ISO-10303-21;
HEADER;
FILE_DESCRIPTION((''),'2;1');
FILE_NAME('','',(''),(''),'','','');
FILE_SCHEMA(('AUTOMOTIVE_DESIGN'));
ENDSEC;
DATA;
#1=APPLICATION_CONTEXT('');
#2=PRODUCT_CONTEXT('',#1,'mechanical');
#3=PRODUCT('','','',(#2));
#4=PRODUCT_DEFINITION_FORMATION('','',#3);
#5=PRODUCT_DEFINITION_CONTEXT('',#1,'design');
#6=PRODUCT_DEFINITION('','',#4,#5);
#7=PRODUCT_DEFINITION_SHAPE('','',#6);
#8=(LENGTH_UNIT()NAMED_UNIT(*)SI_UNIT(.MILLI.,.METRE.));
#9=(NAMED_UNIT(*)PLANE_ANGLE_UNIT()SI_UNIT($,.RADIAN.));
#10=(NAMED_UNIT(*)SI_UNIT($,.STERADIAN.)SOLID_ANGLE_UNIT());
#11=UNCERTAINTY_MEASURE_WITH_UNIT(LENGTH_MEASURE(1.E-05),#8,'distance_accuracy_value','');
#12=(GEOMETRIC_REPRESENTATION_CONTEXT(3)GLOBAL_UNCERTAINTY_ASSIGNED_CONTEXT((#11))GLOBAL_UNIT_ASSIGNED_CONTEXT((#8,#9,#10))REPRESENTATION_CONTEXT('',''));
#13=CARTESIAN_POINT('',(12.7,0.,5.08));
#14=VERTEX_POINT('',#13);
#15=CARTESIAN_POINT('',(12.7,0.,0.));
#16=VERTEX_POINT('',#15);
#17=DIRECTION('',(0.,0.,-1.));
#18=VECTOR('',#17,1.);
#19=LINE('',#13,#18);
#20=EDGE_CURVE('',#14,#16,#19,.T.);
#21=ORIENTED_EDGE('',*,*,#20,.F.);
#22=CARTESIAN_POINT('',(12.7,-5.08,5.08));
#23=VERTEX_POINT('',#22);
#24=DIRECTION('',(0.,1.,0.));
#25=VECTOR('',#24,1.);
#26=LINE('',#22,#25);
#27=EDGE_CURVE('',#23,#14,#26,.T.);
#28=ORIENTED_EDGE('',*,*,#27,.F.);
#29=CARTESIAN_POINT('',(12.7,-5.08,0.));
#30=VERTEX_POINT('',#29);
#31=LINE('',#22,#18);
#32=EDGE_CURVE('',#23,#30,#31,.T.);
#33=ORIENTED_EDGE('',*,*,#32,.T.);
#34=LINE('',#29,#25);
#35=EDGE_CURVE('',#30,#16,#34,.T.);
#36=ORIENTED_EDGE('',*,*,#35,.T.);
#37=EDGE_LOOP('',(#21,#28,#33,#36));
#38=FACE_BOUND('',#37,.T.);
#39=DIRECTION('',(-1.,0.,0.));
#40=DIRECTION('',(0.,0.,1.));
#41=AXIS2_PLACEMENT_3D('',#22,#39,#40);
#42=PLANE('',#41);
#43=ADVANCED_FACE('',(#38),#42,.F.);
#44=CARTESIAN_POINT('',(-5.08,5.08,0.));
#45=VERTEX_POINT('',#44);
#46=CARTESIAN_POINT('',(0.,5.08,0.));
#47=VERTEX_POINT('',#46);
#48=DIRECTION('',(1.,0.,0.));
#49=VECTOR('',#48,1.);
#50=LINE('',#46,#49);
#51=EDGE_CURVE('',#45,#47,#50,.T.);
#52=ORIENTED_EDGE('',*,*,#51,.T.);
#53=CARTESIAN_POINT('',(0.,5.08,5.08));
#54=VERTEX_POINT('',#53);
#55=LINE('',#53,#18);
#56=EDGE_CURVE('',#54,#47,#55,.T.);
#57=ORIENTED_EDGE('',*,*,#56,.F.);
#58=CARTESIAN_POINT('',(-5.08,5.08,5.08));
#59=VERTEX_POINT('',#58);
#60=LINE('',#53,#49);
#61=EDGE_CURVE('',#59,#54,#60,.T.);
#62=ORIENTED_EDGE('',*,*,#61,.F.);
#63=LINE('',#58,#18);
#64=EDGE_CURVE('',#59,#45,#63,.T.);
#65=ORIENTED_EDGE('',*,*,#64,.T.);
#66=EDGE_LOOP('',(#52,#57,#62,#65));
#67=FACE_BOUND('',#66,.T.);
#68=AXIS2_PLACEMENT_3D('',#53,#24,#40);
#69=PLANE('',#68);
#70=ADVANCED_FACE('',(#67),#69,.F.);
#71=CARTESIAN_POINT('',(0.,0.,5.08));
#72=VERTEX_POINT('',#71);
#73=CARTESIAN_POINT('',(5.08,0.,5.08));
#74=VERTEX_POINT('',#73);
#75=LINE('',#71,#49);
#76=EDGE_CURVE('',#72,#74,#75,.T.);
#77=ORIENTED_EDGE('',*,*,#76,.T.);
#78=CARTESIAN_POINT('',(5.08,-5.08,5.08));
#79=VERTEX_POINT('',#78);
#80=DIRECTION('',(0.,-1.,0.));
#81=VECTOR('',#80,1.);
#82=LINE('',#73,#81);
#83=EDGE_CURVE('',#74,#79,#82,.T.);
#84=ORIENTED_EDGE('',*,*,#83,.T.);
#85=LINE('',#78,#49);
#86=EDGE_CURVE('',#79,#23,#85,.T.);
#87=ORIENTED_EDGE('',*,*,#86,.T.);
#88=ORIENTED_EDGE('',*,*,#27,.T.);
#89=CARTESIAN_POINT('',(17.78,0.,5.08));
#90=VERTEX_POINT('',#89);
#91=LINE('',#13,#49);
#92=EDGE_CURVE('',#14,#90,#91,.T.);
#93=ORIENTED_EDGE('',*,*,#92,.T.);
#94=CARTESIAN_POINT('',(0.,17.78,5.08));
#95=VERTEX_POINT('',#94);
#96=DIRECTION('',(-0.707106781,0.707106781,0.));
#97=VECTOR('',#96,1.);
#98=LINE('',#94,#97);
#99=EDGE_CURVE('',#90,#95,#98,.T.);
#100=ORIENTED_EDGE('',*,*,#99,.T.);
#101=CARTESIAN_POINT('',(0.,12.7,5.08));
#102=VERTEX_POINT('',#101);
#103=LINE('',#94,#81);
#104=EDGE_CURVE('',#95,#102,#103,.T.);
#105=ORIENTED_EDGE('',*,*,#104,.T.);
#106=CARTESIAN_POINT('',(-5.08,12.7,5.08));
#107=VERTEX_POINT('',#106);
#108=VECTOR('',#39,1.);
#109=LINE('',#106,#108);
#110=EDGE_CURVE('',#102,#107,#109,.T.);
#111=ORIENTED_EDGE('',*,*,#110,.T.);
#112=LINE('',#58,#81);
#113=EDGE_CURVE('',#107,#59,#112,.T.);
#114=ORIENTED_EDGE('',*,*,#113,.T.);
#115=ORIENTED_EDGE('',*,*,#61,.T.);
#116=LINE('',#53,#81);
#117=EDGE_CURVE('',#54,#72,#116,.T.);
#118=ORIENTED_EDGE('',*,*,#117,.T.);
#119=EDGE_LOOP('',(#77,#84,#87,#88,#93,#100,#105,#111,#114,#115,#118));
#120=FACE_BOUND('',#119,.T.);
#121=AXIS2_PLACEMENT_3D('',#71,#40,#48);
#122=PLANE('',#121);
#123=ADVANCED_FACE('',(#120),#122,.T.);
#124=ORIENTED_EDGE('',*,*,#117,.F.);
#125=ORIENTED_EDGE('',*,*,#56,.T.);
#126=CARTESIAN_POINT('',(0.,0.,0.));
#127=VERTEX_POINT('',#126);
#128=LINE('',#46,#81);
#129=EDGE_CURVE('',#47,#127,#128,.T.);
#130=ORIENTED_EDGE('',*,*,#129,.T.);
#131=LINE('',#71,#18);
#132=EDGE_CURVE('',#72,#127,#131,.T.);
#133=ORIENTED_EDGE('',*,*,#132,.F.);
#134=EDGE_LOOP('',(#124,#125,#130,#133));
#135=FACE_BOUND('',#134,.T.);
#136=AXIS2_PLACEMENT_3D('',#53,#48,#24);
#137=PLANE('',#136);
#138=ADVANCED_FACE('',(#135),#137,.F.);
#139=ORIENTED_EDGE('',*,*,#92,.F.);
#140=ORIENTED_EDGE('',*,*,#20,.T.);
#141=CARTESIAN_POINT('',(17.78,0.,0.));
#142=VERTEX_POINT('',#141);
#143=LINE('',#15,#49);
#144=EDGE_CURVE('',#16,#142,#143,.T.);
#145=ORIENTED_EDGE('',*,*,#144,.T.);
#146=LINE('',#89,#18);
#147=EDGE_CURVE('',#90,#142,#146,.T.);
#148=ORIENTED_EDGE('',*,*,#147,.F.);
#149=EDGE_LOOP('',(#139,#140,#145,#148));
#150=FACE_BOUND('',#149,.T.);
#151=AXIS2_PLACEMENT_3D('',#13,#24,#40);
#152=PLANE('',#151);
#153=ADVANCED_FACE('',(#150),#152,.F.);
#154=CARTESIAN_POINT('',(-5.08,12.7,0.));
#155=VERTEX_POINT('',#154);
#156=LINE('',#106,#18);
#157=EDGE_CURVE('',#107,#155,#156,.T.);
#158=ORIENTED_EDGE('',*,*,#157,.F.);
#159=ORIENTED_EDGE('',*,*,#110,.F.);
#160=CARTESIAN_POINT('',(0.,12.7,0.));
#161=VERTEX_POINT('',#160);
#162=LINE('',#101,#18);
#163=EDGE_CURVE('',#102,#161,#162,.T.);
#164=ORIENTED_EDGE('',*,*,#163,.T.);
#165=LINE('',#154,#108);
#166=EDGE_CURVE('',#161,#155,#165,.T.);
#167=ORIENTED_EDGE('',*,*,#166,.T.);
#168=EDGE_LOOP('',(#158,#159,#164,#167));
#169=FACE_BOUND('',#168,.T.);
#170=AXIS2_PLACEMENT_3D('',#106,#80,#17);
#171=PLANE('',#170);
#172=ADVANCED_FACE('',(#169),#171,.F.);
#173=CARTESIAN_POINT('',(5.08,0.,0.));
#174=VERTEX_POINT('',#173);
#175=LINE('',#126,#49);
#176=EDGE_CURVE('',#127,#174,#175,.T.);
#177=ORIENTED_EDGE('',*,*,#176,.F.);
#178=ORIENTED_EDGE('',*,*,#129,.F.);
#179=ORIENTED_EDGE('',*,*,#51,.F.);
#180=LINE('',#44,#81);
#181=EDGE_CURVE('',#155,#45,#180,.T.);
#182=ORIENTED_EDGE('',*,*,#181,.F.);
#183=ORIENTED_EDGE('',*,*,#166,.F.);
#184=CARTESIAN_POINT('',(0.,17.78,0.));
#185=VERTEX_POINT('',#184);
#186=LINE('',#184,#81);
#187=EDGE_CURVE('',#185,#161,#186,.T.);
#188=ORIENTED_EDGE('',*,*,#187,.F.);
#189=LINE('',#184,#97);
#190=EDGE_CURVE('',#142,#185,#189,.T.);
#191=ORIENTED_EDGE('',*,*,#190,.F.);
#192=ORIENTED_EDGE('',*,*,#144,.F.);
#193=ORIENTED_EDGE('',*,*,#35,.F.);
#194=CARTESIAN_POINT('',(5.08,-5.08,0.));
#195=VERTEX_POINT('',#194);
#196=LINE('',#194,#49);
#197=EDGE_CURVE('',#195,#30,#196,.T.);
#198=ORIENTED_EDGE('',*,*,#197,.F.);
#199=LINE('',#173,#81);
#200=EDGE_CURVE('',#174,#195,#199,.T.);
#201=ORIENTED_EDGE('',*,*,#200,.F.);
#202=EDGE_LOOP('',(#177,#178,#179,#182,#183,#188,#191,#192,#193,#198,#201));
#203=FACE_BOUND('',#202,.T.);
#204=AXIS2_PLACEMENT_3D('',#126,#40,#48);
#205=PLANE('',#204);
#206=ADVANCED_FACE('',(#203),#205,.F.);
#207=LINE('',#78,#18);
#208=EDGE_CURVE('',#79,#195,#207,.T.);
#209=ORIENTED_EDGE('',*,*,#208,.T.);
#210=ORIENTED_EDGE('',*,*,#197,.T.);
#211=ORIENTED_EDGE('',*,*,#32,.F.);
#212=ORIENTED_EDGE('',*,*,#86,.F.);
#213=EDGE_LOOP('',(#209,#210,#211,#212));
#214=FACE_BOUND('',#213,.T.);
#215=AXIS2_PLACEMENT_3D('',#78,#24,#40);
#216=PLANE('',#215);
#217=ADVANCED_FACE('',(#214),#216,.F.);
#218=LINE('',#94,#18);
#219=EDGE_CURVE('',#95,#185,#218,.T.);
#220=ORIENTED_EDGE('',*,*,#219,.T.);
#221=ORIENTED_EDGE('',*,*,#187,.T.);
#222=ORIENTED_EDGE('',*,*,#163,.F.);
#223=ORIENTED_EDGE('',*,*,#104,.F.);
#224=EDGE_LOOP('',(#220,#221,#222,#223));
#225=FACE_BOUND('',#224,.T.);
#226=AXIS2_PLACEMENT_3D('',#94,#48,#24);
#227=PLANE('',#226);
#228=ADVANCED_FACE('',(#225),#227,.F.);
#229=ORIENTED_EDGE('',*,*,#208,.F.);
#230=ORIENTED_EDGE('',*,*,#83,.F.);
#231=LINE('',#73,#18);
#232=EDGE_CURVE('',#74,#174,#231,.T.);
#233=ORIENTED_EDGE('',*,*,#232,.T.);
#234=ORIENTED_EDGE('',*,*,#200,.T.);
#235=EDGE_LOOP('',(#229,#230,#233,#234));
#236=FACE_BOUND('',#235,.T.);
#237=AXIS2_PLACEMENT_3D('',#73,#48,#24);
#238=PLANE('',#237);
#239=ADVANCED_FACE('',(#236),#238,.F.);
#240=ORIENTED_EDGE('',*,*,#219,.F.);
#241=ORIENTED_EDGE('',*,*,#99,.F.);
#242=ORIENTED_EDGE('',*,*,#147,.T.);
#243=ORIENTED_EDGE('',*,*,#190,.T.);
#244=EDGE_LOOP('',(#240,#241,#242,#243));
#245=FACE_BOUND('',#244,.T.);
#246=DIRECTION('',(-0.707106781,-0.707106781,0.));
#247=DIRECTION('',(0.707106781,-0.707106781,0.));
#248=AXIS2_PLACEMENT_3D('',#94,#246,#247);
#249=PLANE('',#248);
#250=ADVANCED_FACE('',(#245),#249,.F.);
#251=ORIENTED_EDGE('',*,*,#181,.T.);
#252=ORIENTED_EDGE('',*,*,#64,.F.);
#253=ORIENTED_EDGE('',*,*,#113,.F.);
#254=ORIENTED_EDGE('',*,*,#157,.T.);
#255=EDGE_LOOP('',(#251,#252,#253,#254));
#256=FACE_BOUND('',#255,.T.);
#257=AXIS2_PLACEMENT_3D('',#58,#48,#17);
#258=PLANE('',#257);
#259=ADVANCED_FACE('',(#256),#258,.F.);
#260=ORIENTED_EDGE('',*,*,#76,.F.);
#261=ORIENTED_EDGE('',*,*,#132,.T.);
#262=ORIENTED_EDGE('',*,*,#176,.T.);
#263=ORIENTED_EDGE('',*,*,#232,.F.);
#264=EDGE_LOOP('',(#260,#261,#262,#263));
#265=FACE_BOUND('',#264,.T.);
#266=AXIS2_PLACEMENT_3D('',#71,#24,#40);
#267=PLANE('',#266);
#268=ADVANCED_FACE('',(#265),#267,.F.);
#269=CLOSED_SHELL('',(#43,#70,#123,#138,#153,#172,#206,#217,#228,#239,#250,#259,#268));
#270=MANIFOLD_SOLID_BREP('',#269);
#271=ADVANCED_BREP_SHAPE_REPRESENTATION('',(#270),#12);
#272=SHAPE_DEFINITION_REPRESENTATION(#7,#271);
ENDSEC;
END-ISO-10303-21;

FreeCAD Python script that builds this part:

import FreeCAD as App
import Part
import Sketcher

V = App.Vector
Q = App.Units.Quantity


def add_polygon(sketch, points):
    """Adds a closed chain of lines whose ends are joined by coincident constraints."""
    first, n = sketch.GeometryCount, len(points)
    for a, b in zip(points, points[1:] + points[:1]):
        sketch.addGeometry(Part.LineSegment(App.Vector(*a, 0), App.Vector(*b, 0)), False)
    for i in range(n):
        sketch.addConstraint(Sketcher.Constraint("Coincident", first + i, 2, first + (i + 1) % n, 1))

doc = App.newDocument("Part")
body = doc.addObject("PartDesign::Body", "Body")

# Sketch on XY plane
sketch1 = doc.addObject("Sketcher::SketchObject", "Sketch")
body.addObject(sketch1)
sketch1.AttachmentSupport = (doc.XY_Plane, [""])
sketch1.MapMode = "FlatFace"
add_polygon(sketch1, [(0, 0), (5, 0), (5, -5), (13, -5), (13, 0), (18, 0), (0, 18), (0, 13), (-5, 13), (-5, 5), (0, 5)])  # lines 0-10
sketch1.addConstraint(Sketcher.Constraint("Horizontal", 0))
sketch1.addConstraint(Sketcher.Constraint("Vertical", 1))
sketch1.addConstraint(Sketcher.Constraint("Horizontal", 2))
sketch1.addConstraint(Sketcher.Constraint("Vertical", 3))
sketch1.addConstraint(Sketcher.Constraint("Horizontal", 4))
sketch1.addConstraint(Sketcher.Constraint("Vertical", 6))
sketch1.addConstraint(Sketcher.Constraint("Horizontal", 7))
sketch1.addConstraint(Sketcher.Constraint("Vertical", 8))
sketch1.addConstraint(Sketcher.Constraint("Horizontal", 9))
sketch1.addConstraint(Sketcher.Constraint("Vertical", 10))
sketch1.addConstraint(Sketcher.Constraint("Coincident", 10, 2, -1, 1))
sketch1.addConstraint(Sketcher.Constraint("Symmetric", 1, 2, 8, 2, -1, 1))
sketch1.addConstraint(Sketcher.Constraint("PointOnObject", 3, 2, -1))
sketch1.addConstraint(Sketcher.Constraint("PointOnObject", 5, 2, -2))
sketch1.addConstraint(Sketcher.Constraint("Equal", 0, 4))
sketch1.addConstraint(Sketcher.Constraint("Equal", 9, 1))
sketch1.addConstraint(Sketcher.Constraint("Equal", 3, 6))
sketch1.addConstraint(Sketcher.Constraint("Equal", 2, 8))
sketch1.addConstraint(Sketcher.Constraint("DistanceX", 0, 1, 0, 2, Q("0.2 in")))
sketch1.addConstraint(Sketcher.Constraint("DistanceX", 2, 1, 2, 2, Q("0.3 in")))
pad1 = doc.addObject("PartDesign::Pad", "Pad")
body.addObject(pad1)
pad1.Profile = sketch1
pad1.Length = Q("0.2 in")

doc.recompute()
